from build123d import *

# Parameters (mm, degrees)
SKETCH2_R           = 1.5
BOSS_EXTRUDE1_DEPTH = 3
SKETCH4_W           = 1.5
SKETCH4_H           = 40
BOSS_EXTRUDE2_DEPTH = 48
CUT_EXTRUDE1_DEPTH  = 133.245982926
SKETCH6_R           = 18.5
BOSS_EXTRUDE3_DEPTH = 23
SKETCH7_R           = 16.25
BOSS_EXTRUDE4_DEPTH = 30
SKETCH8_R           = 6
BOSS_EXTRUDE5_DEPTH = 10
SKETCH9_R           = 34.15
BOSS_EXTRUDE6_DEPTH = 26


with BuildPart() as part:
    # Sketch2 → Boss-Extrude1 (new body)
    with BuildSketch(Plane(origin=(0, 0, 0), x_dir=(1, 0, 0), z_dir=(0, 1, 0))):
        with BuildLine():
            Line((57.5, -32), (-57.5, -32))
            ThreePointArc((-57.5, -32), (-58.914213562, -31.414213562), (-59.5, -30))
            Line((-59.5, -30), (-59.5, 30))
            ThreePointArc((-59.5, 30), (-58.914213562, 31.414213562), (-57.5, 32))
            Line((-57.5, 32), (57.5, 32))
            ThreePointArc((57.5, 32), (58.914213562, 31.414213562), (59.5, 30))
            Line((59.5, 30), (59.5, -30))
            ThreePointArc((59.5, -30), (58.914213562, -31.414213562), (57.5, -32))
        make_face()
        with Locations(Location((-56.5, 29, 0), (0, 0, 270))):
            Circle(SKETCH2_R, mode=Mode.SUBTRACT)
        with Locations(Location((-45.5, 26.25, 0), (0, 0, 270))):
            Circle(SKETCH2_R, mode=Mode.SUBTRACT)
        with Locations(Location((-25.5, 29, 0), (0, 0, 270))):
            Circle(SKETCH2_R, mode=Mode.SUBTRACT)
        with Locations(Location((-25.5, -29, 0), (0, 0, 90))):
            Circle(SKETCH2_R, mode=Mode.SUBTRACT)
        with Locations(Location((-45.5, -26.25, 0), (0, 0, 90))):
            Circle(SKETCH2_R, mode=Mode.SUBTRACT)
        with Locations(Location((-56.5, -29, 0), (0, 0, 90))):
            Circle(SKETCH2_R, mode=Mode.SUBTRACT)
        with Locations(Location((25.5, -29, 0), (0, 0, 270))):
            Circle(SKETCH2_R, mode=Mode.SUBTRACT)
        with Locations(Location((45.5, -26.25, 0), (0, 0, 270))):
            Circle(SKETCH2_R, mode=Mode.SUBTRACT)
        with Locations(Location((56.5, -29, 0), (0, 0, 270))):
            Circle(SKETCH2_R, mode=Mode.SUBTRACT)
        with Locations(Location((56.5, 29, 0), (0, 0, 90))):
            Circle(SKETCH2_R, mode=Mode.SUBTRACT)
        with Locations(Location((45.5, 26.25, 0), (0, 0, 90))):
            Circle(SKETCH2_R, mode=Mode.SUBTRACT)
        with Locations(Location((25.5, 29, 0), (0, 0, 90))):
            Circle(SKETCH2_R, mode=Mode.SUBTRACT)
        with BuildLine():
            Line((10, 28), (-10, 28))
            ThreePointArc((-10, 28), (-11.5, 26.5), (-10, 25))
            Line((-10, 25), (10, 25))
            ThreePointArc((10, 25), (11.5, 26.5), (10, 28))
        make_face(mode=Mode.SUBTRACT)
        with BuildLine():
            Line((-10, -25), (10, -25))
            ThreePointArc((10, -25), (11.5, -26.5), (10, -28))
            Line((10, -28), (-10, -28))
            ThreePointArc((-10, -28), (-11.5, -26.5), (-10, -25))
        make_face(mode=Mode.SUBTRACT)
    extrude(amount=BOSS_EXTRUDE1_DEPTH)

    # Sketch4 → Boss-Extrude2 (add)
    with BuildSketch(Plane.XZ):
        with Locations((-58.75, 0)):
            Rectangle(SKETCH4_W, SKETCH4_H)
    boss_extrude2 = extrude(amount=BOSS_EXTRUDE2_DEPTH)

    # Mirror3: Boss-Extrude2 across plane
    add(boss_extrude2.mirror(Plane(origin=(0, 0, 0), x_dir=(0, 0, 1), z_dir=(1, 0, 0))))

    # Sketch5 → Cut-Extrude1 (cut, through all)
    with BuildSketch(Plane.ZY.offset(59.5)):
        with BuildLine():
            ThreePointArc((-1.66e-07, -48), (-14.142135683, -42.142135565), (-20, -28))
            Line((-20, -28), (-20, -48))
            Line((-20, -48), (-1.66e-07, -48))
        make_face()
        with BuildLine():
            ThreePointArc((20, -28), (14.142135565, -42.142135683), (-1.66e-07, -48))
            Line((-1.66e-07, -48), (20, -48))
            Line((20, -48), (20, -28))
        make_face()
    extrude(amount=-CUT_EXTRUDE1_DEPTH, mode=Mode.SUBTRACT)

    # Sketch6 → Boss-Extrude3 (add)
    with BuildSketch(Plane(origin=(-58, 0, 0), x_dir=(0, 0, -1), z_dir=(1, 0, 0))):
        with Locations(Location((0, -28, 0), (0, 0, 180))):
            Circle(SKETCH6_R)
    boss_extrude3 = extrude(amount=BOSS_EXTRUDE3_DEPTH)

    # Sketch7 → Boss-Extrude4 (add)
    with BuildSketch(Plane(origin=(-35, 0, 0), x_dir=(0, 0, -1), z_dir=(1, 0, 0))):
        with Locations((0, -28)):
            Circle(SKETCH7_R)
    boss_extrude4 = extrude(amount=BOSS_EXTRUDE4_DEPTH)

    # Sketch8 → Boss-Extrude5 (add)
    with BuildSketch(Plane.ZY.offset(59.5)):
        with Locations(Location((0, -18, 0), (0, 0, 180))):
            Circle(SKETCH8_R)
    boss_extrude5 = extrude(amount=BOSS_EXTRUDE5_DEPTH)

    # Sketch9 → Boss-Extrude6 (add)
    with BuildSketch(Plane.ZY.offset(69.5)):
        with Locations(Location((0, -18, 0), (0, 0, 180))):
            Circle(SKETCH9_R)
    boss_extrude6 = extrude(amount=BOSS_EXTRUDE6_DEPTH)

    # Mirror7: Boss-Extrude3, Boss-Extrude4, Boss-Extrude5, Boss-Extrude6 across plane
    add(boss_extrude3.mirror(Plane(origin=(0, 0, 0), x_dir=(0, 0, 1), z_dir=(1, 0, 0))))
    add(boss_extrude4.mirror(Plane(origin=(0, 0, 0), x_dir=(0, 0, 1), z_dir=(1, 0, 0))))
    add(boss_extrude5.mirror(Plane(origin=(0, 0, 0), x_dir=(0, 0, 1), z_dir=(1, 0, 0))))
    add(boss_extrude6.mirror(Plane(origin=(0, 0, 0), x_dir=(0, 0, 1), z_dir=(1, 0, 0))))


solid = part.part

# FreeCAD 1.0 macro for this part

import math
import FreeCAD as App
import Part
import Sketcher

V = App.Vector
Q = App.Units.Quantity

doc = App.newDocument("Part")
body = doc.addObject("PartDesign::Body", "Body")

# Sketch on XZ plane
sketch1 = doc.addObject("Sketcher::SketchObject", "Sketch")
body.addObject(sketch1)
sketch1.AttachmentSupport = (doc.XZ_Plane, [""])
sketch1.MapMode = "FlatFace"
sketch1.addGeometry([
    Part.LineSegment(V(-57.5, 32, 0), V(57.5, 32, 0)),  # 0
    Part.ArcOfCircle(Part.Circle(V(57.5, 30, 0), V(0, 0, 1), 2), math.radians(0), math.radians(90)),  # 1
    Part.LineSegment(V(59.5, 30, 0), V(59.5, -30, 0)),  # 2
    Part.ArcOfCircle(Part.Circle(V(57.5, -30, 0), V(0, 0, 1), 2), math.radians(-90), math.radians(0)),  # 3
    Part.LineSegment(V(57.5, -32, 0), V(-57.5, -32, 0)),  # 4
    Part.ArcOfCircle(Part.Circle(V(-57.5, -30, 0), V(0, 0, 1), 2), math.radians(-180), math.radians(-90)),  # 5
    Part.LineSegment(V(-59.5, -30, 0), V(-59.5, 30, 0)),  # 6
    Part.ArcOfCircle(Part.Circle(V(-57.5, 30, 0), V(0, 0, 1), 2), math.radians(90), math.radians(180)),  # 7
    Part.Circle(V(56.5, 29, 0), V(0, 0, 1), 1.5),  # 8
    Part.Circle(V(45.5, 26.25, 0), V(0, 0, 1), 1.5),  # 9
    Part.Circle(V(25.5, 29, 0), V(0, 0, 1), 1.5),  # 10
    Part.LineSegment(V(-10, 25, 0), V(10, 25, 0)),  # 11
    Part.ArcOfCircle(Part.Circle(V(10, 26.5, 0), V(0, 0, 1), 1.5), math.radians(-90), math.radians(90)),  # 12
    Part.LineSegment(V(10, 28, 0), V(-10, 28, 0)),  # 13
    Part.ArcOfCircle(Part.Circle(V(-10, 26.5, 0), V(0, 0, 1), 1.5), math.radians(90), math.radians(270)),  # 14
    Part.Circle(V(-25.5, 29, 0), V(0, 0, 1), 1.5),  # 15
    Part.Circle(V(-56.5, 29, 0), V(0, 0, 1), 1.5),  # 16
    Part.Circle(V(-45.5, 26.25, 0), V(0, 0, 1), 1.5),  # 17
    Part.Circle(V(45.5, -26.25, 0), V(0, 0, 1), 1.5),  # 18
    Part.Circle(V(56.5, -29, 0), V(0, 0, 1), 1.5),  # 19
    Part.Circle(V(25.5, -29, 0), V(0, 0, 1), 1.5),  # 20
    Part.ArcOfCircle(Part.Circle(V(10, -26.5, 0), V(0, 0, 1), 1.5), math.radians(-90), math.radians(90)),  # 21
    Part.LineSegment(V(10, -25, 0), V(-10, -25, 0)),  # 22
    Part.ArcOfCircle(Part.Circle(V(-10, -26.5, 0), V(0, 0, 1), 1.5), math.radians(90), math.radians(270)),  # 23
    Part.LineSegment(V(-10, -28, 0), V(10, -28, 0)),  # 24
    Part.Circle(V(-25.5, -29, 0), V(0, 0, 1), 1.5),  # 25
    Part.Circle(V(-45.5, -26.25, 0), V(0, 0, 1), 1.5),  # 26
    Part.Circle(V(-56.5, -29, 0), V(0, 0, 1), 1.5),  # 27
], False)
sketch1.addConstraint([
    Sketcher.Constraint("Tangent", 0, 2, 1, 2),
    Sketcher.Constraint("Tangent", 1, 1, 2, 1),
    Sketcher.Constraint("Tangent", 2, 2, 3, 2),
    Sketcher.Constraint("Tangent", 3, 1, 4, 1),
    Sketcher.Constraint("Tangent", 4, 2, 5, 2),
    Sketcher.Constraint("Tangent", 5, 1, 6, 1),
    Sketcher.Constraint("Tangent", 6, 2, 7, 2),
    Sketcher.Constraint("Tangent", 7, 1, 0, 1),
    Sketcher.Constraint("Tangent", 11, 2, 12, 1),
    Sketcher.Constraint("Tangent", 12, 2, 13, 1),
    Sketcher.Constraint("Tangent", 13, 2, 14, 1),
    Sketcher.Constraint("Tangent", 14, 2, 11, 1),
    Sketcher.Constraint("Tangent", 21, 2, 22, 1),
    Sketcher.Constraint("Tangent", 22, 2, 23, 1),
    Sketcher.Constraint("Tangent", 23, 2, 24, 1),
    Sketcher.Constraint("Tangent", 24, 2, 21, 1),
    Sketcher.Constraint("Horizontal", 0),
    Sketcher.Constraint("Vertical", 2),
    Sketcher.Constraint("Horizontal", 4),
    Sketcher.Constraint("Vertical", 6),
    Sketcher.Constraint("Horizontal", 11),
    Sketcher.Constraint("Horizontal", 13),
    Sketcher.Constraint("Horizontal", 22),
    Sketcher.Constraint("Horizontal", 24),
    Sketcher.Constraint("Equal", 1, 3),
    Sketcher.Constraint("Equal", 3, 5),
    Sketcher.Constraint("Equal", 5, 7),
    Sketcher.Constraint("Equal", 8, 9),
    Sketcher.Constraint("Equal", 9, 10),
    Sketcher.Constraint("Equal", 10, 12),
    Sketcher.Constraint("Equal", 14, 15),
    Sketcher.Constraint("Equal", 15, 16),
    Sketcher.Constraint("Equal", 16, 17),
    Sketcher.Constraint("Equal", 17, 18),
    Sketcher.Constraint("Equal", 18, 19),
    Sketcher.Constraint("Equal", 19, 20),
    Sketcher.Constraint("Equal", 20, 21),
    Sketcher.Constraint("Equal", 23, 25),
    Sketcher.Constraint("Equal", 25, 26),
    Sketcher.Constraint("Equal", 26, 27),
    Sketcher.Constraint("Symmetric", 1, 3, 5, 3, -1, 1),
    Sketcher.Constraint("Symmetric", 17, 3, 18, 3, -1, 1),
    Sketcher.Constraint("Symmetric", 16, 3, 19, 3, -1, 1),
    Sketcher.Constraint("Symmetric", 15, 3, 20, 3, -1, 1),
    Sketcher.Constraint("Symmetric", 14, 3, 21, 3, -1, 1),
    Sketcher.Constraint("Symmetric", 10, 3, 25, 3, -1, 1),
    Sketcher.Constraint("Symmetric", 9, 3, 26, 3, -1, 1),
    Sketcher.Constraint("Symmetric", 8, 3, 27, 3, -1, 1),
    Sketcher.Constraint("Symmetric", 10, 3, 15, 3, -2),
    Sketcher.Constraint("Symmetric", 8, 3, 16, 3, -2),
    Sketcher.Constraint("Symmetric", 9, 3, 17, 3, -2),
    Sketcher.Constraint("Horizontal", 8, 3, 10, 3),
    Sketcher.Constraint("Vertical", 12, 3, 21, 3),
    Sketcher.Constraint("Vertical", 14, 3, 23, 3),
    Sketcher.Constraint("Diameter", 8, Q("3 mm")),
    Sketcher.Constraint("Radius", 1, Q("2 mm")),
    Sketcher.Constraint("DistanceX", 0, 1, 0, 2, Q("115 mm")),
    Sketcher.Constraint("DistanceX", 11, 1, 11, 2, Q("20 mm")),
    Sketcher.Constraint("DistanceY", 2, 2, 2, 1, Q("60 mm")),
    Sketcher.Constraint("DistanceY", -1, 1, 8, 3, Q("29 mm")),
    Sketcher.Constraint("DistanceY", -1, 1, 11, 2, Q("25 mm")),
    Sketcher.Constraint("DistanceX", 8, 3, 1, 3, Q("1 mm")),
    Sketcher.Constraint("DistanceX", 9, 3, 8, 3, Q("11 mm")),
    Sketcher.Constraint("DistanceX", 10, 3, 9, 3, Q("20 mm")),
    Sketcher.Constraint("DistanceY", 18, 3, 9, 3, Q("52.5 mm")),
])
pad1 = doc.addObject("PartDesign::Pad", "Pad")
body.addObject(pad1)
pad1.Profile = sketch1
pad1.Length = 3
pad1.Reversed = True

# Sketch on XZ plane
sketch2 = doc.addObject("Sketcher::SketchObject", "Sketch001")
body.addObject(sketch2)
sketch2.AttachmentSupport = (doc.XZ_Plane, [""])
sketch2.MapMode = "FlatFace"
sketch2.addGeometry([
    Part.LineSegment(V(-59.5, 20, 0), V(-59.5, -20, 0)),
    Part.LineSegment(V(-59.5, -20, 0), V(-58, -20, 0)),
    Part.LineSegment(V(-58, -20, 0), V(-58, 20, 0)),
    Part.LineSegment(V(-58, 20, 0), V(-59.5, 20, 0)),
], False)
sketch2.addConstraint([
    Sketcher.Constraint("Coincident", 0, 2, 1, 1),
    Sketcher.Constraint("Coincident", 1, 2, 2, 1),
    Sketcher.Constraint("Coincident", 2, 2, 3, 1),
    Sketcher.Constraint("Coincident", 3, 2, 0, 1),
    Sketcher.Constraint("Vertical", 0),
    Sketcher.Constraint("Horizontal", 1),
    Sketcher.Constraint("Vertical", 2),
    Sketcher.Constraint("Horizontal", 3),
    Sketcher.Constraint("DistanceY", 0, 2, 0, 1, Q("40 mm")),
    Sketcher.Constraint("DistanceX", 1, 1, 1, 2, Q("1.5 mm")),
    Sketcher.Constraint("DistanceY", 0, 2, -1, 1, Q("20 mm")),
    Sketcher.Constraint("DistanceX", 1, 2, -1, 1, Q("58 mm")),
])
pad2 = doc.addObject("PartDesign::Pad", "Pad001")
body.addObject(pad2)
pad2.Profile = sketch2
pad2.Length = 48
doc.recompute()

mirrored = doc.addObject("PartDesign::Mirrored", "Mirrored")
body.addObject(mirrored)
mirrored.Originals = [pad2]
mirrored.MirrorPlane = (doc.YZ_Plane, [""])
body.Tip = mirrored

# Sketch on YZ plane
sketch3 = doc.addObject("Sketcher::SketchObject", "Sketch002")
body.addObject(sketch3)
sketch3.AttachmentSupport = (doc.YZ_Plane, [""])
sketch3.MapMode = "FlatFace"
sketch3.AttachmentOffset = App.Placement(V(0, 0, -59.5), App.Rotation())
sketch3.addGeometry([
    Part.ArcOfCircle(Part.Circle(V(-28, 0, 0), V(0, 0, 1), 20), math.radians(-180), math.radians(-90)),  # 0
    Part.LineSegment(V(-28, -20, 0), V(-48, -20, 0)),  # 1
    Part.LineSegment(V(-48, -20, 0), V(-48, 0, 0)),  # 2
    Part.ArcOfCircle(Part.Circle(V(-28, 0, 0), V(0, 0, 1), 20), math.radians(90), math.radians(180)),  # 3
    Part.LineSegment(V(-48, 0, 0), V(-48, 20, 0)),  # 4
    Part.LineSegment(V(-48, 20, 0), V(-28, 20, 0)),  # 5
], False)
sketch3.addConstraint([
    Sketcher.Constraint("Tangent", 0, 2, 1, 1),
    Sketcher.Constraint("Coincident", 1, 2, 2, 1),
    Sketcher.Constraint("Tangent", 2, 2, 0, 1),
    Sketcher.Constraint("Tangent", 3, 2, 4, 1),
    Sketcher.Constraint("Coincident", 4, 2, 5, 1),
    Sketcher.Constraint("Tangent", 5, 2, 3, 1),
    Sketcher.Constraint("Horizontal", 1),
    Sketcher.Constraint("Vertical", 2),
    Sketcher.Constraint("Vertical", 4),
    Sketcher.Constraint("Horizontal", 5),
    Sketcher.Constraint("Coincident", 3, 3, 0, 3),
    Sketcher.Constraint("Equal", 0, 3),
    Sketcher.Constraint("PointOnObject", 0, 3, -1),
    Sketcher.Constraint("Radius", 0, Q("20 mm")),
    Sketcher.Constraint("DistanceX", 0, 3, -1, 1, Q("28 mm")),
])
pocket1 = doc.addObject("PartDesign::Pocket", "Pocket")
body.addObject(pocket1)
pocket1.Profile = sketch3
pocket1.Type = "ThroughAll"
pocket1.Reversed = True

# Sketch on YZ plane
sketch4 = doc.addObject("Sketcher::SketchObject", "Sketch003")
body.addObject(sketch4)
sketch4.AttachmentSupport = (doc.YZ_Plane, [""])
sketch4.MapMode = "FlatFace"
sketch4.AttachmentOffset = App.Placement(V(0, 0, -58), App.Rotation())
sketch4.addGeometry(Part.Circle(V(-28, 0, 0), V(0, 0, 1), 18.5), False)
sketch4.addConstraint([
    Sketcher.Constraint("PointOnObject", 0, 3, -1),
    Sketcher.Constraint("Diameter", 0, Q("37 mm")),
    Sketcher.Constraint("DistanceX", 0, 3, -1, 1, Q("28 mm")),
])
pad3 = doc.addObject("PartDesign::Pad", "Pad002")
body.addObject(pad3)
pad3.Profile = sketch4
pad3.Length = 23

# Sketch on YZ plane
sketch5 = doc.addObject("Sketcher::SketchObject", "Sketch004")
body.addObject(sketch5)
sketch5.AttachmentSupport = (doc.YZ_Plane, [""])
sketch5.MapMode = "FlatFace"
sketch5.AttachmentOffset = App.Placement(V(0, 0, -35), App.Rotation())
sketch5.addGeometry(Part.Circle(V(-28, 0, 0), V(0, 0, 1), 16.25), False)
sketch5.addConstraint([
    Sketcher.Constraint("PointOnObject", 0, 3, -1),
    Sketcher.Constraint("Diameter", 0, Q("32.5 mm")),
    Sketcher.Constraint("DistanceX", 0, 3, -1, 1, Q("28 mm")),
])
pad4 = doc.addObject("PartDesign::Pad", "Pad003")
body.addObject(pad4)
pad4.Profile = sketch5
pad4.Length = 30

# Sketch on YZ plane
sketch6 = doc.addObject("Sketcher::SketchObject", "Sketch005")
body.addObject(sketch6)
sketch6.AttachmentSupport = (doc.YZ_Plane, [""])
sketch6.MapMode = "FlatFace"
sketch6.AttachmentOffset = App.Placement(V(0, 0, -59.5), App.Rotation())
sketch6.addGeometry(Part.Circle(V(-18, 0, 0), V(0, 0, 1), 6), False)
sketch6.addConstraint([
    Sketcher.Constraint("PointOnObject", 0, 3, -1),
    Sketcher.Constraint("Diameter", 0, Q("12 mm")),
    Sketcher.Constraint("DistanceX", 0, 3, -1, 1, Q("18 mm")),
])
pad5 = doc.addObject("PartDesign::Pad", "Pad004")
body.addObject(pad5)
pad5.Profile = sketch6
pad5.Length = 10
pad5.Reversed = True

# Sketch on YZ plane
sketch7 = doc.addObject("Sketcher::SketchObject", "Sketch006")
body.addObject(sketch7)
sketch7.AttachmentSupport = (doc.YZ_Plane, [""])
sketch7.MapMode = "FlatFace"
sketch7.AttachmentOffset = App.Placement(V(0, 0, -69.5), App.Rotation())
sketch7.addGeometry(Part.Circle(V(-18, 0, 0), V(0, 0, 1), 34.15), False)
sketch7.addConstraint([
    Sketcher.Constraint("PointOnObject", 0, 3, -1),
    Sketcher.Constraint("Diameter", 0, Q("68.3 mm")),
    Sketcher.Constraint("DistanceX", 0, 3, -1, 1, Q("18 mm")),
])
pad6 = doc.addObject("PartDesign::Pad", "Pad005")
body.addObject(pad6)
pad6.Profile = sketch7
pad6.Length = 26
pad6.Reversed = True
doc.recompute()

mirrored2 = doc.addObject("PartDesign::Mirrored", "Mirrored001")
body.addObject(mirrored2)
mirrored2.Originals = [pad3, pad4, pad5, pad6]
mirrored2.MirrorPlane = (doc.YZ_Plane, [""])
body.Tip = mirrored2

doc.recompute()
